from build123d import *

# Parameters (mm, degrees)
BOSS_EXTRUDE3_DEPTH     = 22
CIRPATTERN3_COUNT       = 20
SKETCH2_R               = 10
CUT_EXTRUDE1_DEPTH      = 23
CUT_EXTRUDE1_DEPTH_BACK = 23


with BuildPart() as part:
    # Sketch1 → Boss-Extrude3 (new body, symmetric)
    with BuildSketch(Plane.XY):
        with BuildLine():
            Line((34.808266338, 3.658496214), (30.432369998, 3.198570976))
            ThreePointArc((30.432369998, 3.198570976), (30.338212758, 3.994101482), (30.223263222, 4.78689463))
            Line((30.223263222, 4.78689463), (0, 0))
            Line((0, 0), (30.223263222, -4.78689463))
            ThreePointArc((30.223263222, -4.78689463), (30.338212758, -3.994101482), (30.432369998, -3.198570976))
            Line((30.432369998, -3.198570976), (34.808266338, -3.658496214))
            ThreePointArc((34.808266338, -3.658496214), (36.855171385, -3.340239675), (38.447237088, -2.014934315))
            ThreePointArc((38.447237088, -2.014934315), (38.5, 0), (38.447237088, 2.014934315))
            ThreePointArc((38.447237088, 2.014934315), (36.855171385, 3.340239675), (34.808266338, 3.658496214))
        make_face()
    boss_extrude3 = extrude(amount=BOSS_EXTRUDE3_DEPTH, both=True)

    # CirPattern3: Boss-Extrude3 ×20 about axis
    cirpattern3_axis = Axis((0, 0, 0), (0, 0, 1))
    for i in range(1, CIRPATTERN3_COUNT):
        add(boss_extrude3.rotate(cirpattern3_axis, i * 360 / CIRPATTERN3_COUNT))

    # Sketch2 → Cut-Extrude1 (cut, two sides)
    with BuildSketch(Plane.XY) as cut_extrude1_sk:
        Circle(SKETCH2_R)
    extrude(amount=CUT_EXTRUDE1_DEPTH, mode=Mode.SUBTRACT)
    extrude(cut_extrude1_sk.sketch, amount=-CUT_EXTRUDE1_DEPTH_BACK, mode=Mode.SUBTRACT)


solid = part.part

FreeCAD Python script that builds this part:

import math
import FreeCAD as App
import Part
import Sketcher
Q = App.Units.Quantity

doc = App.newDocument("Part")
body = doc.addObject("PartDesign::Body", "Body")

# Sketch on XY plane
sketch1 = doc.addObject("Sketcher::SketchObject", "Sketch")
body.addObject(sketch1)
sketch1.AttachmentSupport = (doc.XY_Plane, [""])
sketch1.MapMode = "FlatFace"
sketch1.addGeometry(Part.LineSegment(App.Vector(34.8, 3.7, 0), App.Vector(30.4, 3.2, 0)), False)
sketch1.addGeometry(Part.ArcOfCircle(Part.Circle(App.Vector(0, 0, 0), App.Vector(0, 0, 1), 30.6), math.radians(6), math.radians(9)), False)
sketch1.addGeometry(Part.LineSegment(App.Vector(30.2, 4.8, 0), App.Vector(0, 0, 0)), False)
sketch1.addGeometry(Part.LineSegment(App.Vector(0, 0, 0), App.Vector(30.2, -4.8, 0)), False)
sketch1.addGeometry(Part.ArcOfCircle(Part.Circle(App.Vector(0, 0, 0), App.Vector(0, 0, 1), 30.6), math.radians(-9), math.radians(-6)), False)
sketch1.addGeometry(Part.LineSegment(App.Vector(30.4, -3.2, 0), App.Vector(34.8, -3.7, 0)), False)
sketch1.addGeometry(Part.ArcOfCircle(Part.Circle(App.Vector(35.3, 0.2, 0), App.Vector(0, 0, 1), 3.9), math.radians(-97), math.radians(-35)), False)
sketch1.addGeometry(Part.ArcOfCircle(Part.Circle(App.Vector(0, 0, 0), App.Vector(0, 0, 1), 38.5), math.radians(-3), math.radians(3)), False)
sketch1.addGeometry(Part.ArcOfCircle(Part.Circle(App.Vector(35.3, -0.2, 0), App.Vector(0, 0, 1), 3.9), math.radians(35), math.radians(97)), False)
sketch1.addConstraint(Sketcher.Constraint("Coincident", 0, 2, 1, 1))
sketch1.addConstraint(Sketcher.Constraint("Coincident", 1, 2, 2, 1))
sketch1.addConstraint(Sketcher.Constraint("Coincident", 2, 2, 3, 1))
sketch1.addConstraint(Sketcher.Constraint("Coincident", 3, 2, 4, 1))
sketch1.addConstraint(Sketcher.Constraint("Coincident", 4, 2, 5, 1))
sketch1.addConstraint(Sketcher.Constraint("Coincident", 5, 2, 6, 1))
sketch1.addConstraint(Sketcher.Constraint("Coincident", 6, 2, 7, 1))
sketch1.addConstraint(Sketcher.Constraint("Coincident", 7, 2, 8, 1))
sketch1.addConstraint(Sketcher.Constraint("Coincident", 8, 2, 0, 1))
sketch1.addConstraint(Sketcher.Constraint("Coincident", 1, 3, -1, 1))
sketch1.addConstraint(Sketcher.Constraint("Coincident", 4, 3, -1, 1))
sketch1.addConstraint(Sketcher.Constraint("Coincident", 7, 3, -1, 1))
sketch1.addConstraint(Sketcher.Constraint("Coincident", 2, 2, -1, 1))
sketch1.addConstraint(Sketcher.Constraint("Equal", 1, 4))
sketch1.addConstraint(Sketcher.Constraint("Equal", 6, 8))
sketch1.addConstraint(Sketcher.Constraint("Symmetric", 6, 3, 8, 3, -1))
sketch1.addConstraint(Sketcher.Constraint("Vertical", 1, 2, 3, 2))
sketch1.addConstraint(Sketcher.Constraint("Vertical", 0, 2, 4, 2))
sketch1.addConstraint(Sketcher.Constraint("Vertical", 5, 2, 8, 2))
sketch1.addConstraint(Sketcher.Constraint("Radius", 1, 30.599999))
sketch1.addConstraint(Sketcher.Constraint("Radius", 7, 38.5))
sketch1.addConstraint(Sketcher.Constraint("Angle", 0, Q("-174 deg")))
sketch1.addConstraint(Sketcher.Constraint("Angle", 2, Q("-171 deg")))
sketch1.addConstraint(Sketcher.Constraint("Distance", 0, 4.4))
sketch1.addConstraint(Sketcher.Constraint("Radius", 6, 3.883353))
sketch1.addConstraint(Sketcher.Constraint("DistanceY", 3, 2, 5, 2, 1.128398))
sketch1.addConstraint(Sketcher.Constraint("DistanceX", -1, 1, 6, 3, 35.256709))
pad1 = doc.addObject("PartDesign::Pad", "Pad")
body.addObject(pad1)
pad1.Profile = sketch1
pad1.Length = 44
pad1.Midplane = True
doc.recompute()

polarpattern = doc.addObject("PartDesign::PolarPattern", "PolarPattern")
body.addObject(polarpattern)
polarpattern.Originals = [pad1]
polarpattern.Axis = (doc.Z_Axis, [""])
polarpattern.Angle = 360
polarpattern.Occurrences = 20
body.Tip = polarpattern

# Sketch on XY plane
sketch2 = doc.addObject("Sketcher::SketchObject", "Sketch001")
body.addObject(sketch2)
sketch2.AttachmentSupport = (doc.XY_Plane, [""])
sketch2.MapMode = "FlatFace"
sketch2.addGeometry(Part.Circle(App.Vector(0, 0, 0), App.Vector(0, 0, 1), 10), False)
sketch2.addConstraint(Sketcher.Constraint("Coincident", 0, 3, -1, 1))
sketch2.addConstraint(Sketcher.Constraint("Diameter", 0, 20.0))
pocket1 = doc.addObject("PartDesign::Pocket", "Pocket")
body.addObject(pocket1)
pocket1.Profile = sketch2
pocket1.Type = "ThroughAll"
pocket1.Midplane = True

doc.recompute()
